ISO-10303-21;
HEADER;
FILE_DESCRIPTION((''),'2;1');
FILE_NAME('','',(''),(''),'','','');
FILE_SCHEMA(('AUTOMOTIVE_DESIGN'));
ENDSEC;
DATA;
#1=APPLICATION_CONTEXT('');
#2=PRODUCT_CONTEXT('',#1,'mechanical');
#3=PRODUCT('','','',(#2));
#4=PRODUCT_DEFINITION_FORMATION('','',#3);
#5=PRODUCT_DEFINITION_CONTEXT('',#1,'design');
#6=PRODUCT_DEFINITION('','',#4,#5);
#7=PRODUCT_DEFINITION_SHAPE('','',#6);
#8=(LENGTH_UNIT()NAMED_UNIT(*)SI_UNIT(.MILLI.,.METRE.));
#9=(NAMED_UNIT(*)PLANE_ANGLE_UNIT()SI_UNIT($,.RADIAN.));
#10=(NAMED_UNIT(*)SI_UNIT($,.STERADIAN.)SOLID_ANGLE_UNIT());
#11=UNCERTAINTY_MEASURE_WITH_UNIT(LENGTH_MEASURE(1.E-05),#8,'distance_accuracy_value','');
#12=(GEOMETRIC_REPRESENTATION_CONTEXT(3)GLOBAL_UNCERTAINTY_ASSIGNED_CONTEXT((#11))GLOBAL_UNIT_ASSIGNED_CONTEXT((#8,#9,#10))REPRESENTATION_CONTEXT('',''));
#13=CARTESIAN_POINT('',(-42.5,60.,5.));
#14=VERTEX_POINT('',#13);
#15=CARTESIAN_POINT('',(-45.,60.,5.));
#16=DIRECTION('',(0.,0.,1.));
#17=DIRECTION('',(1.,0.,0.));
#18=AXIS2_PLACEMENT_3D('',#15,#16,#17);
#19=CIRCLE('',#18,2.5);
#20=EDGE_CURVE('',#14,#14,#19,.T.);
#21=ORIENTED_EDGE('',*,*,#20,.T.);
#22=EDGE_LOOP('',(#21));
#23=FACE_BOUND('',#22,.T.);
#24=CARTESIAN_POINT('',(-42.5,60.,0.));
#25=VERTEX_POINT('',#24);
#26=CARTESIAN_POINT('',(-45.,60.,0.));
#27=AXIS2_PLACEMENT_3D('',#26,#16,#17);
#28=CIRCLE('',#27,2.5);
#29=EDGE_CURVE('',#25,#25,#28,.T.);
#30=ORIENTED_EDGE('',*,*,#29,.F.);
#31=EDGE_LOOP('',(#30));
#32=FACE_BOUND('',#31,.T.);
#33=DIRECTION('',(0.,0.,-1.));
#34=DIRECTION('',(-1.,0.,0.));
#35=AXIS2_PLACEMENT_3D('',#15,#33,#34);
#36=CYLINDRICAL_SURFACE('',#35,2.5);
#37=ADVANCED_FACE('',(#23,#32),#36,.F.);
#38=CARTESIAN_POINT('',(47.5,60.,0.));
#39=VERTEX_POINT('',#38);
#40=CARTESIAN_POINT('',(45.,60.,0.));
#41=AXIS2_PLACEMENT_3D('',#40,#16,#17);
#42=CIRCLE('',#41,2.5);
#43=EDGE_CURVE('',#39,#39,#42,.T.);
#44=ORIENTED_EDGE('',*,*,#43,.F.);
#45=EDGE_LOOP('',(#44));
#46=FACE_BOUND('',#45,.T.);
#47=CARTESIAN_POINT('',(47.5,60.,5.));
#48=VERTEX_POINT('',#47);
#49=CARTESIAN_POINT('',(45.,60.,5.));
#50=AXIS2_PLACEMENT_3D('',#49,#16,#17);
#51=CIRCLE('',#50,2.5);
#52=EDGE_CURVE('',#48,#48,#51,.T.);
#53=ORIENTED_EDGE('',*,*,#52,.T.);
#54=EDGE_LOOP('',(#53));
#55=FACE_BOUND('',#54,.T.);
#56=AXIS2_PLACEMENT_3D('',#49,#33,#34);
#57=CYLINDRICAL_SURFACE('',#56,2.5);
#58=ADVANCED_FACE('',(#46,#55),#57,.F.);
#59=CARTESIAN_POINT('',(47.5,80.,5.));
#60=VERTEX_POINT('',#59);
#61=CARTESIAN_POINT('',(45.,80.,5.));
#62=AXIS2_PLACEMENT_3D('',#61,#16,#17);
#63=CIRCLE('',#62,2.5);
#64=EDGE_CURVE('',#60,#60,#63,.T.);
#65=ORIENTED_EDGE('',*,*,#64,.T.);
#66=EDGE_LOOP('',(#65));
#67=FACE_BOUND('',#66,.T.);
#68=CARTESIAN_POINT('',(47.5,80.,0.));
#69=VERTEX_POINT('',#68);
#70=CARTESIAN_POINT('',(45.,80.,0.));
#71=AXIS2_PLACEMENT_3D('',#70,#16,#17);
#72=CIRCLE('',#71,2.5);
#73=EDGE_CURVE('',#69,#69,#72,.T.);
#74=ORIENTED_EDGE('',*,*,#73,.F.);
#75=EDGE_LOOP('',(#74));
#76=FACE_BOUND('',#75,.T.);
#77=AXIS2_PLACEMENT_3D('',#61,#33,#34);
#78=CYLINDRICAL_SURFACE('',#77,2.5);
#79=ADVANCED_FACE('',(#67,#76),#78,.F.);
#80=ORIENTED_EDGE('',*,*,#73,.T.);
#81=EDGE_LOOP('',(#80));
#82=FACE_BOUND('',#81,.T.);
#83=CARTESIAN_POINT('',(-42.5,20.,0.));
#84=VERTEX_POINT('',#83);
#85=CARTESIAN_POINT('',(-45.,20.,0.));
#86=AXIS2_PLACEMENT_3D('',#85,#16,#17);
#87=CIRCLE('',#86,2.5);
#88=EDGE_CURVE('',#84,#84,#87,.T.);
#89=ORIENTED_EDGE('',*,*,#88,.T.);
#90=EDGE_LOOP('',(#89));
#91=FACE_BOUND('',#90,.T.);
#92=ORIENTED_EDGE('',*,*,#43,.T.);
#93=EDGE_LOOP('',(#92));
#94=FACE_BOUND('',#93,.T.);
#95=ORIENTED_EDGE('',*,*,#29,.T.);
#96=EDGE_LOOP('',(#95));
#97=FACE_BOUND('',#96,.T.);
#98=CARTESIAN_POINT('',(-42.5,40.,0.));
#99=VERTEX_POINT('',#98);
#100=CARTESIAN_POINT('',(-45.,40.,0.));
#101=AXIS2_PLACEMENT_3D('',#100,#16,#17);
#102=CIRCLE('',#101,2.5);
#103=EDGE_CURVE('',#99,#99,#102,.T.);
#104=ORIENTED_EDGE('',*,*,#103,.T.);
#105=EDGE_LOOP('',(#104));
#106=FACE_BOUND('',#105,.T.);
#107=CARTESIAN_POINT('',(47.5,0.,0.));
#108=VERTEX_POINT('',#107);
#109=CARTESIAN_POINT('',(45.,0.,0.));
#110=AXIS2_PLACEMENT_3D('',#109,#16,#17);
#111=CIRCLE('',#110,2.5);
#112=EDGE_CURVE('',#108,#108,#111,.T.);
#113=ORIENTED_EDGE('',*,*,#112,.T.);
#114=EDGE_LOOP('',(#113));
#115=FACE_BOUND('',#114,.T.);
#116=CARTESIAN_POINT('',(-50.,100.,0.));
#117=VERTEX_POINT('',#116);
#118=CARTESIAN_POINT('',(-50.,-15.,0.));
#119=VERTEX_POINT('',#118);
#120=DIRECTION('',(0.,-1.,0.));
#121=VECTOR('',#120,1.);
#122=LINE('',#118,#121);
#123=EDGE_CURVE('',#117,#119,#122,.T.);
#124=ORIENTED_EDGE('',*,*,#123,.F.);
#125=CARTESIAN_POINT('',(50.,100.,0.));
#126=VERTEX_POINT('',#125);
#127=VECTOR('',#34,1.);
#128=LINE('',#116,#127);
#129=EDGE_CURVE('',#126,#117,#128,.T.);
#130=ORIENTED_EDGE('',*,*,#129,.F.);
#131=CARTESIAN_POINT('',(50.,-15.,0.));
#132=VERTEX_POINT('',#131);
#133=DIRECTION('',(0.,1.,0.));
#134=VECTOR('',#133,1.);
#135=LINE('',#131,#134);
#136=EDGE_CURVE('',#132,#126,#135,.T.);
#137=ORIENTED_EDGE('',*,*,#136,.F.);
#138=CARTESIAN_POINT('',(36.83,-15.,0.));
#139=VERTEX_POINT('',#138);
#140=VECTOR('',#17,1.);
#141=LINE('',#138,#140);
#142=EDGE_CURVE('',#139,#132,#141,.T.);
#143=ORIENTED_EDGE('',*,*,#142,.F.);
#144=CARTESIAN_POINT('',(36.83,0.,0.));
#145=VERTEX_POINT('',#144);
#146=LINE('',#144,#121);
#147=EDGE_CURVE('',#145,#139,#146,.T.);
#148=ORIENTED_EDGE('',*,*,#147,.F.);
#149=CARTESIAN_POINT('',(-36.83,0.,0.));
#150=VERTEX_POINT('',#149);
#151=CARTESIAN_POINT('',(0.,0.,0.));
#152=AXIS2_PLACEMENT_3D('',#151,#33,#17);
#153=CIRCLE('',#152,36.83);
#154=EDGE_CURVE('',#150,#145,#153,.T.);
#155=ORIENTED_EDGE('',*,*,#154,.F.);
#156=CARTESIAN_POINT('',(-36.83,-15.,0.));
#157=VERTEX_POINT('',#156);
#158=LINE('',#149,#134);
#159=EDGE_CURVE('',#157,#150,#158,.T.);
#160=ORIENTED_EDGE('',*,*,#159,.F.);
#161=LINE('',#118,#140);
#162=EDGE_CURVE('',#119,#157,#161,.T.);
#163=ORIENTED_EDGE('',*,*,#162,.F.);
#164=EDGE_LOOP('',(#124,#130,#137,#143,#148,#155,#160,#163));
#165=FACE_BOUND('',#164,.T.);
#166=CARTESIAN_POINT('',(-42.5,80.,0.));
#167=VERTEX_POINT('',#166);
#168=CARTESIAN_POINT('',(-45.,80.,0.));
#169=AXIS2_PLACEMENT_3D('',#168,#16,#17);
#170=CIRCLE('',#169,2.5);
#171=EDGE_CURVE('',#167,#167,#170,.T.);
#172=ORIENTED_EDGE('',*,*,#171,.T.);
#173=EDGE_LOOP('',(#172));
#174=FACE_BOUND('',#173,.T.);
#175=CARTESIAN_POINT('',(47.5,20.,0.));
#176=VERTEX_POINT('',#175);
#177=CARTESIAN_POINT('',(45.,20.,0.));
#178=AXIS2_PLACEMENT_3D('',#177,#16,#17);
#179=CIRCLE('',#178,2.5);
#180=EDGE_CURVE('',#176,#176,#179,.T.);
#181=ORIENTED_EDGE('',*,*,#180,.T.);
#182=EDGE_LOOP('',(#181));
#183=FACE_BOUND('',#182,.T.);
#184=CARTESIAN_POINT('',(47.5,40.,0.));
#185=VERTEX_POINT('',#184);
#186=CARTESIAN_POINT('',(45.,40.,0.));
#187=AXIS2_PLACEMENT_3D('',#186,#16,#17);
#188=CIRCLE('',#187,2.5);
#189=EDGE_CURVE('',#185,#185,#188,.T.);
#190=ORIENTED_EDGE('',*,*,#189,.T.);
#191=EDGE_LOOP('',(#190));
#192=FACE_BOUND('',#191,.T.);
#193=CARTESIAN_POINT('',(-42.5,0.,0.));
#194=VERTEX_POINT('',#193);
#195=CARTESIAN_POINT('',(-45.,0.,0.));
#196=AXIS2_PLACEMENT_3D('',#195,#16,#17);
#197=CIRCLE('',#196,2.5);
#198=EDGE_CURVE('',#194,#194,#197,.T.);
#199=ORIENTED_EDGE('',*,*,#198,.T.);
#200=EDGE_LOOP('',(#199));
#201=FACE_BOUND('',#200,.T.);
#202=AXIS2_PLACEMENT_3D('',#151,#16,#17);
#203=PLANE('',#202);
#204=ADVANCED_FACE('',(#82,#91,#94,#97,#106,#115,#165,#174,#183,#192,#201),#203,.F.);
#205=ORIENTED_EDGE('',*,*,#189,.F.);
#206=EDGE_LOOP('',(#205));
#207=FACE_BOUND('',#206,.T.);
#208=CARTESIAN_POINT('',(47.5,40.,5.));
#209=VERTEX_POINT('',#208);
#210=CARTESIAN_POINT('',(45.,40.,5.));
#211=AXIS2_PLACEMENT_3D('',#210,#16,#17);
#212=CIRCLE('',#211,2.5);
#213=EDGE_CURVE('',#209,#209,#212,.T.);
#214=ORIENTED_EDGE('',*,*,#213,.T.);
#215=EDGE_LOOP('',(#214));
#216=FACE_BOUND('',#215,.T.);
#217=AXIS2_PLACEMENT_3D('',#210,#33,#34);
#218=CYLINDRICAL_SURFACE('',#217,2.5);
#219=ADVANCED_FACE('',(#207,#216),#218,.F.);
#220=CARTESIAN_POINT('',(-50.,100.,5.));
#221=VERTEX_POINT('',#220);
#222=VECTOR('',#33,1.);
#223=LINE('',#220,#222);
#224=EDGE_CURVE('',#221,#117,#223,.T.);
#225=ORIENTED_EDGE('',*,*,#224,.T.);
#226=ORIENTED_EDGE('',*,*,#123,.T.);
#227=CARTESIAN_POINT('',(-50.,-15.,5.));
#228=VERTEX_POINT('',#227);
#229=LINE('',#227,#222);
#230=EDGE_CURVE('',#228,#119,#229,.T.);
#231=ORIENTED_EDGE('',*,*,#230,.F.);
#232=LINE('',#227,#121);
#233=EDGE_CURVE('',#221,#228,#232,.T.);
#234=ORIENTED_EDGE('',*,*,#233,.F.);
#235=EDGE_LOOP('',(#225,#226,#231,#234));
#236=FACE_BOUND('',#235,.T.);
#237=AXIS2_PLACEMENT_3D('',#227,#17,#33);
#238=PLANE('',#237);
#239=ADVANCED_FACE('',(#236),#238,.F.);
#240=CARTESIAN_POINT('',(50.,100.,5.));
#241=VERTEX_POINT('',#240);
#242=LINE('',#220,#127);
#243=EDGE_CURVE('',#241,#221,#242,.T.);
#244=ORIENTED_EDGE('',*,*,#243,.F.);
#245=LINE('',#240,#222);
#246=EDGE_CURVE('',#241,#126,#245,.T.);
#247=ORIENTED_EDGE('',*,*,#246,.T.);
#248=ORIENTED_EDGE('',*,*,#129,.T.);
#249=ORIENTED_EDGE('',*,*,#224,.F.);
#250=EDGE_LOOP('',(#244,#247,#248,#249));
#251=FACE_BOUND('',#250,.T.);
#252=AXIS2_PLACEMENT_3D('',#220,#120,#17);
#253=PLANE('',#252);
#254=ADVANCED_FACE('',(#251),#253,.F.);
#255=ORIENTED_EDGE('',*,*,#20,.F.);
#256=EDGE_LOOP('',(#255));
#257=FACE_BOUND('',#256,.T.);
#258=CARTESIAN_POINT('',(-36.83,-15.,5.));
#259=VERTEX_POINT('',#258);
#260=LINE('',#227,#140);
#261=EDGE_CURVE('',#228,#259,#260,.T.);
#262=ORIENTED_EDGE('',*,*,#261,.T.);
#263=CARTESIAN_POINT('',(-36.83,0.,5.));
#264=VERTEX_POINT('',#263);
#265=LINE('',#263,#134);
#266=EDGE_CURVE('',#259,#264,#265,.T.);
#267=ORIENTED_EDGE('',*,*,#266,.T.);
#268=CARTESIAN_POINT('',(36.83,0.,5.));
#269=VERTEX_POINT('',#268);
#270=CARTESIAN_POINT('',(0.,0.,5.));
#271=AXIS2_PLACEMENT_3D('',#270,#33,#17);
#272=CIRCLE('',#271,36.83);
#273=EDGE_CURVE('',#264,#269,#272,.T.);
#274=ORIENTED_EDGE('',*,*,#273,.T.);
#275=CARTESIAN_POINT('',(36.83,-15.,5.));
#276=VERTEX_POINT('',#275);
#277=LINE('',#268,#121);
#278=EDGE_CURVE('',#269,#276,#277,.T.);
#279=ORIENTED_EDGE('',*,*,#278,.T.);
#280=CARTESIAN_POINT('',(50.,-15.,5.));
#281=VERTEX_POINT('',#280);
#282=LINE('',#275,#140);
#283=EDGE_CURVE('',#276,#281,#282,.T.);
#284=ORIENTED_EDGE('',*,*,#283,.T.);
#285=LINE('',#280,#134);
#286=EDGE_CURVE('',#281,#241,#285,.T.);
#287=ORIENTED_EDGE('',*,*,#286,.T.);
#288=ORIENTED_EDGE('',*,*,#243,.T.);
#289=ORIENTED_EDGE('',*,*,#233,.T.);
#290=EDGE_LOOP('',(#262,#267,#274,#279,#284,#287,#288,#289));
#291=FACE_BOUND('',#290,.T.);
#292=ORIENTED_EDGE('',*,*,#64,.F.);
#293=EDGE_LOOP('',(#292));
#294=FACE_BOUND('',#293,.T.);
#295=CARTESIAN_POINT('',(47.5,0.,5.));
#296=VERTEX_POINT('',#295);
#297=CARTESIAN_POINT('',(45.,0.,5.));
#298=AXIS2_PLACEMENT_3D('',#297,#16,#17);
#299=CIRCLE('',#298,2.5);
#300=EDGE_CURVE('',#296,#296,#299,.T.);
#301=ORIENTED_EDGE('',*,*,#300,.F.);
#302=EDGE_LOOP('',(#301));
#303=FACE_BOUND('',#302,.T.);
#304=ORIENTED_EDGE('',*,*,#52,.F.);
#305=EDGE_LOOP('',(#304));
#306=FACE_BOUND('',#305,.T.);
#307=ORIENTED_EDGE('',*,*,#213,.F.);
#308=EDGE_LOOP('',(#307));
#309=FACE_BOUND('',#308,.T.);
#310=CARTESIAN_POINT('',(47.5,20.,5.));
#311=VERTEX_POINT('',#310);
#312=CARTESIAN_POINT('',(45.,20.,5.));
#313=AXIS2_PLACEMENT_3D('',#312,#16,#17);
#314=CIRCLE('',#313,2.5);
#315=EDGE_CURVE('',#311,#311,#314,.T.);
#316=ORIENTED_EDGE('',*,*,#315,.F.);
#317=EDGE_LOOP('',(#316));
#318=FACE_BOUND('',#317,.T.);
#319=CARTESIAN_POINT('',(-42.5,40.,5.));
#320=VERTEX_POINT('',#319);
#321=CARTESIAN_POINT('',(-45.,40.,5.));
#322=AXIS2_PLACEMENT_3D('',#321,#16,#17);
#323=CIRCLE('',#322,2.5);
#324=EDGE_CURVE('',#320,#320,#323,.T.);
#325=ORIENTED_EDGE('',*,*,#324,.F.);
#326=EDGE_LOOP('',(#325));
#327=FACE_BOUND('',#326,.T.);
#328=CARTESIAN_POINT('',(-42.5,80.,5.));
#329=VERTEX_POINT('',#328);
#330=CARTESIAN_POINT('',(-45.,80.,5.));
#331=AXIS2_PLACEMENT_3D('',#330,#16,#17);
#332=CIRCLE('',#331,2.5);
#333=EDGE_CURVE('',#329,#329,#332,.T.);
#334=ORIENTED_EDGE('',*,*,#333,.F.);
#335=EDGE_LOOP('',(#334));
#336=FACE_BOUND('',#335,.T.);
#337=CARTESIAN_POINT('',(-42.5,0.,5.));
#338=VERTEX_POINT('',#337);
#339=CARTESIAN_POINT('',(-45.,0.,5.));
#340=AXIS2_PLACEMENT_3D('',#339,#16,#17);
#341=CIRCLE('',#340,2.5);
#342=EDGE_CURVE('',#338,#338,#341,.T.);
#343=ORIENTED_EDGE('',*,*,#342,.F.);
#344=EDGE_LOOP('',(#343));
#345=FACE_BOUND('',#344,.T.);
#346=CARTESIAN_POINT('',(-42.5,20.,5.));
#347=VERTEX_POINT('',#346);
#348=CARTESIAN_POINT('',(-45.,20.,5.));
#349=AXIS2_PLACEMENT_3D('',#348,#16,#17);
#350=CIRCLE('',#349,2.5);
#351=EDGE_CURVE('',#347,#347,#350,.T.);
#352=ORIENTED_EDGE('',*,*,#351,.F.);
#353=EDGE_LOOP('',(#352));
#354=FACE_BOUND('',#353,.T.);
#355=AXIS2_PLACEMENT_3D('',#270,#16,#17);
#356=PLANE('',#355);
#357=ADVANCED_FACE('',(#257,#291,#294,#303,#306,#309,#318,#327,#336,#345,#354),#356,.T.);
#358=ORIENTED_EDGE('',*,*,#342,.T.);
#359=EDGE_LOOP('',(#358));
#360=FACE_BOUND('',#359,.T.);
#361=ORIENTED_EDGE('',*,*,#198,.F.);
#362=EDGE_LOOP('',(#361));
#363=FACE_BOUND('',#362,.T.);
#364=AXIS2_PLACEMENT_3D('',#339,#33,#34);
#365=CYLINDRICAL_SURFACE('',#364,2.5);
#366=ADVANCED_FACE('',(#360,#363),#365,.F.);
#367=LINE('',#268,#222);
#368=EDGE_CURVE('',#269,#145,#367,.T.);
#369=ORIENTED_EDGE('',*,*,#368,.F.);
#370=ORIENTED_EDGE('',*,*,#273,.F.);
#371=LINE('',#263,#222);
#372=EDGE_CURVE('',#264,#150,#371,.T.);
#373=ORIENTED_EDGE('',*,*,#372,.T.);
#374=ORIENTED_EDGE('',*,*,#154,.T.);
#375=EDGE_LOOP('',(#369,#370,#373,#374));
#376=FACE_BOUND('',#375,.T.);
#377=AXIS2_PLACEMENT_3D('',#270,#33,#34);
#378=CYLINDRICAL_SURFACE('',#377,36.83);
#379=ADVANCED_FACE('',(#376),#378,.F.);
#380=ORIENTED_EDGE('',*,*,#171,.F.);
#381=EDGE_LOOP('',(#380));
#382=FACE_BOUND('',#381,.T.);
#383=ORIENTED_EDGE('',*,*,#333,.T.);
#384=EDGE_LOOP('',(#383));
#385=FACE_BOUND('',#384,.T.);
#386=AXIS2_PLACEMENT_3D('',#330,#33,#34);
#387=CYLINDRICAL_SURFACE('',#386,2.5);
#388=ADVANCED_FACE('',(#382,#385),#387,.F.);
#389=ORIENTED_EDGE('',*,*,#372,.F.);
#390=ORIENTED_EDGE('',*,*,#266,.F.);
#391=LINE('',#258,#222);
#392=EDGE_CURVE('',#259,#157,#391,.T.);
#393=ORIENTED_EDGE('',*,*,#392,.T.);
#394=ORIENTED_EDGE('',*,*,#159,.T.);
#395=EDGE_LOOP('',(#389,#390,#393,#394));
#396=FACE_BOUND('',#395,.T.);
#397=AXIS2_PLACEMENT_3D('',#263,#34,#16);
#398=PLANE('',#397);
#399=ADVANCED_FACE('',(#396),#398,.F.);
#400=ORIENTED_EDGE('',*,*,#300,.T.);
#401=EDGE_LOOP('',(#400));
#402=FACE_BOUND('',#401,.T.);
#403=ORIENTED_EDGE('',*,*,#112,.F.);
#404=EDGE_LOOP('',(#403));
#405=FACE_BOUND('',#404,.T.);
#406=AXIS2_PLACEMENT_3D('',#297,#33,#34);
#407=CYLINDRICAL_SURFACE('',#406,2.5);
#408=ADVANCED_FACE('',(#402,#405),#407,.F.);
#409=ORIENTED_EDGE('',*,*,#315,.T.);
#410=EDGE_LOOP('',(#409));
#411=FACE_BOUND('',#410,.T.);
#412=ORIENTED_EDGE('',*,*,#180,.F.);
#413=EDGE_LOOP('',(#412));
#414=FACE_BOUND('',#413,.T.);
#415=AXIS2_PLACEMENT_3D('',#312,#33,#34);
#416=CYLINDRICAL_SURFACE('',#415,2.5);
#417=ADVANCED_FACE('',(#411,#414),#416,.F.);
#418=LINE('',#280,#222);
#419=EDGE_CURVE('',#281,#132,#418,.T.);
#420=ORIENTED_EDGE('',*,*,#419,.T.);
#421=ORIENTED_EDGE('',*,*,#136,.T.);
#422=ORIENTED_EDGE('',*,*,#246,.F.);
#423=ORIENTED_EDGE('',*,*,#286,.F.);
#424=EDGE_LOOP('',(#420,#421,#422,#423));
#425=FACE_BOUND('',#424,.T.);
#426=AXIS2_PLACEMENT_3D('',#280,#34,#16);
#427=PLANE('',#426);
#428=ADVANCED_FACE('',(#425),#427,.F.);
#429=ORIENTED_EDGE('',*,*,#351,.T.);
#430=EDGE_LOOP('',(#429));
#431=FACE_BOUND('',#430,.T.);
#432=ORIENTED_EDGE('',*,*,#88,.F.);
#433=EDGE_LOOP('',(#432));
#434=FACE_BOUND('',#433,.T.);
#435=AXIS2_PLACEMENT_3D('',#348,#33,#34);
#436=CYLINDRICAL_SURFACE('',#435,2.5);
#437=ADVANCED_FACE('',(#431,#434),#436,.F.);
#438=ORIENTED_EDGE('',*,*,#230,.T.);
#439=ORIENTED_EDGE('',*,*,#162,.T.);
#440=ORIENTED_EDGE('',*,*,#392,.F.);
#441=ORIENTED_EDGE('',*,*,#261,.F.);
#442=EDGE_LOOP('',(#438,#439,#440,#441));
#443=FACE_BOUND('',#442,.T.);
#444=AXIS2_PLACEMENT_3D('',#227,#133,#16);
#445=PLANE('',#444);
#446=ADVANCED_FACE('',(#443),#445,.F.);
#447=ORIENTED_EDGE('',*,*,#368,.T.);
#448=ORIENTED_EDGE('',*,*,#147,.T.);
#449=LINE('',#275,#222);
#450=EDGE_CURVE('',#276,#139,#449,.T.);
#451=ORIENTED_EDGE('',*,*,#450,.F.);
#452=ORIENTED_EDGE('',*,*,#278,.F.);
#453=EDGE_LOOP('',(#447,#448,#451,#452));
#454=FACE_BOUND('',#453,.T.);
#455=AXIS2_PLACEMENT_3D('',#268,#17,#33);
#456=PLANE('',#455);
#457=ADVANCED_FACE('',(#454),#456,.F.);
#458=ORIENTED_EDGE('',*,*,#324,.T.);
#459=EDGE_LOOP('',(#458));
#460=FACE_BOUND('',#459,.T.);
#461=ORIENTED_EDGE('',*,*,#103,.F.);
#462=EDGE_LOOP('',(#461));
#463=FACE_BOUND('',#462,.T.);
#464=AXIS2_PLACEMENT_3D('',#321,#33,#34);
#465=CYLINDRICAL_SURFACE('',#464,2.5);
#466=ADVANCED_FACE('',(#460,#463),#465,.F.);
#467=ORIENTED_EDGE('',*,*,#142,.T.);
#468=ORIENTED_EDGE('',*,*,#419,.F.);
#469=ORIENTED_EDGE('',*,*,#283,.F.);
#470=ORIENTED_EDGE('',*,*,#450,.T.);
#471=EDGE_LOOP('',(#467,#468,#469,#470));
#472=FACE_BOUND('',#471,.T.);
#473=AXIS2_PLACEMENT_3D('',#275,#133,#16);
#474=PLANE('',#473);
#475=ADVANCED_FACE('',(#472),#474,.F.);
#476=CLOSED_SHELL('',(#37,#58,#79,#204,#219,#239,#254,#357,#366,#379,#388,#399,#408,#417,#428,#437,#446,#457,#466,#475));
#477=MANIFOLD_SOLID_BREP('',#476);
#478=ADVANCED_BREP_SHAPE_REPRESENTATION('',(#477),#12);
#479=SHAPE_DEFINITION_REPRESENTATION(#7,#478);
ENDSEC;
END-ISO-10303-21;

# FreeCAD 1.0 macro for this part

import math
import FreeCAD as App
import Part
import Sketcher

doc = App.newDocument("Part")
body = doc.addObject("PartDesign::Body", "Body")

# Sketch on XY plane
sketch1 = doc.addObject("Sketcher::SketchObject", "Sketch")
body.addObject(sketch1)
sketch1.AttachmentSupport = (doc.XY_Plane, [""])
sketch1.MapMode = "FlatFace"
sketch1.addGeometry([
    Part.LineSegment(App.Vector(-50, 100, 0), App.Vector(-50, -15, 0)),  # 0
    Part.LineSegment(App.Vector(-50, -15, 0), App.Vector(-36.8, -15, 0)),  # 1
    Part.LineSegment(App.Vector(-36.8, -15, 0), App.Vector(-36.8, 0, 0)),  # 2
    Part.ArcOfCircle(Part.Circle(App.Vector(0, 0, 0), App.Vector(0, 0, 1), 36.8), math.radians(0), math.radians(180)),  # 3
    Part.LineSegment(App.Vector(36.8, 0, 0), App.Vector(36.8, -15, 0)),  # 4
    Part.LineSegment(App.Vector(36.8, -15, 0), App.Vector(50, -15, 0)),  # 5
    Part.LineSegment(App.Vector(50, -15, 0), App.Vector(50, 100, 0)),  # 6
    Part.LineSegment(App.Vector(50, 100, 0), App.Vector(-50, 100, 0)),  # 7
    Part.Circle(App.Vector(45, 0, 0), App.Vector(0, 0, 1), 2.5),  # 8
    Part.Circle(App.Vector(45, 20, 0), App.Vector(0, 0, 1), 2.5),  # 9
    Part.Circle(App.Vector(-45, 0, 0), App.Vector(0, 0, 1), 2.5),  # 10
    Part.Circle(App.Vector(-45, 20, 0), App.Vector(0, 0, 1), 2.5),  # 11
    Part.Circle(App.Vector(45, 40, 0), App.Vector(0, 0, 1), 2.5),  # 12
    Part.Circle(App.Vector(45, 60, 0), App.Vector(0, 0, 1), 2.5),  # 13
    Part.Circle(App.Vector(45, 80, 0), App.Vector(0, 0, 1), 2.5),  # 14
    Part.Circle(App.Vector(-45, 40, 0), App.Vector(0, 0, 1), 2.5),  # 15
    Part.Circle(App.Vector(-45, 60, 0), App.Vector(0, 0, 1), 2.5),  # 16
    Part.Circle(App.Vector(-45, 80, 0), App.Vector(0, 0, 1), 2.5),  # 17
], False)
sketch1.addConstraint([
    Sketcher.Constraint("Coincident", 0, 2, 1, 1),
    Sketcher.Constraint("Coincident", 1, 2, 2, 1),
    Sketcher.Constraint("Tangent", 2, 2, 3, 2),
    Sketcher.Constraint("Tangent", 3, 1, 4, 1),
    Sketcher.Constraint("Coincident", 4, 2, 5, 1),
    Sketcher.Constraint("Coincident", 5, 2, 6, 1),
    Sketcher.Constraint("Coincident", 6, 2, 7, 1),
    Sketcher.Constraint("Coincident", 7, 2, 0, 1),
    Sketcher.Constraint("Vertical", 0),
    Sketcher.Constraint("Horizontal", 1),
    Sketcher.Constraint("Vertical", 2),
    Sketcher.Constraint("Vertical", 4),
    Sketcher.Constraint("Horizontal", 5),
    Sketcher.Constraint("Vertical", 6),
    Sketcher.Constraint("Horizontal", 7),
    Sketcher.Constraint("Coincident", 3, 3, -1, 1),
    Sketcher.Constraint("Equal", 8, 9),
    Sketcher.Constraint("Equal", 9, 10),
    Sketcher.Constraint("Equal", 10, 11),
    Sketcher.Constraint("Equal", 11, 12),
    Sketcher.Constraint("Equal", 12, 13),
    Sketcher.Constraint("Equal", 13, 14),
    Sketcher.Constraint("Equal", 14, 15),
    Sketcher.Constraint("Equal", 15, 16),
    Sketcher.Constraint("Equal", 16, 17),
    Sketcher.Constraint("Symmetric", 8, 3, 10, 3, -1, 1),
    Sketcher.Constraint("Symmetric", 9, 3, 11, 3, -2),
    Sketcher.Constraint("Symmetric", 12, 3, 15, 3, -2),
    Sketcher.Constraint("Symmetric", 13, 3, 16, 3, -2),
    Sketcher.Constraint("Symmetric", 14, 3, 17, 3, -2),
    Sketcher.Constraint("Symmetric", 0, 2, 5, 2, -2),
    Sketcher.Constraint("PointOnObject", 8, 3, -1),
    Sketcher.Constraint("Vertical", 8, 3, 9, 3),
    Sketcher.Constraint("Vertical", 9, 3, 12, 3),
    Sketcher.Constraint("Vertical", 12, 3, 13, 3),
    Sketcher.Constraint("Vertical", 13, 3, 14, 3),
    Sketcher.Constraint("Diameter", 8, 5.0),
    Sketcher.Constraint("DistanceX", 7, 2, 7, 1, 100.0),
    Sketcher.Constraint("DistanceY", 0, 2, 0, 1, 115.0),
    Sketcher.Constraint("DistanceY", 2, 1, 2, 2, 15.0),
    Sketcher.Constraint("Radius", 3, 36.83),
    Sketcher.Constraint("DistanceX", -1, 1, 8, 3, 45.0),
    Sketcher.Constraint("DistanceY", -1, 1, 9, 3, 20.0),
    Sketcher.Constraint("DistanceY", -1, 1, 12, 3, 40.0),
    Sketcher.Constraint("DistanceY", -1, 1, 13, 3, 60.0),
    Sketcher.Constraint("DistanceY", -1, 1, 14, 3, 80.0),
])
pad1 = doc.addObject("PartDesign::Pad", "Pad")
body.addObject(pad1)
pad1.Profile = sketch1
pad1.Length = 5

doc.recompute()
